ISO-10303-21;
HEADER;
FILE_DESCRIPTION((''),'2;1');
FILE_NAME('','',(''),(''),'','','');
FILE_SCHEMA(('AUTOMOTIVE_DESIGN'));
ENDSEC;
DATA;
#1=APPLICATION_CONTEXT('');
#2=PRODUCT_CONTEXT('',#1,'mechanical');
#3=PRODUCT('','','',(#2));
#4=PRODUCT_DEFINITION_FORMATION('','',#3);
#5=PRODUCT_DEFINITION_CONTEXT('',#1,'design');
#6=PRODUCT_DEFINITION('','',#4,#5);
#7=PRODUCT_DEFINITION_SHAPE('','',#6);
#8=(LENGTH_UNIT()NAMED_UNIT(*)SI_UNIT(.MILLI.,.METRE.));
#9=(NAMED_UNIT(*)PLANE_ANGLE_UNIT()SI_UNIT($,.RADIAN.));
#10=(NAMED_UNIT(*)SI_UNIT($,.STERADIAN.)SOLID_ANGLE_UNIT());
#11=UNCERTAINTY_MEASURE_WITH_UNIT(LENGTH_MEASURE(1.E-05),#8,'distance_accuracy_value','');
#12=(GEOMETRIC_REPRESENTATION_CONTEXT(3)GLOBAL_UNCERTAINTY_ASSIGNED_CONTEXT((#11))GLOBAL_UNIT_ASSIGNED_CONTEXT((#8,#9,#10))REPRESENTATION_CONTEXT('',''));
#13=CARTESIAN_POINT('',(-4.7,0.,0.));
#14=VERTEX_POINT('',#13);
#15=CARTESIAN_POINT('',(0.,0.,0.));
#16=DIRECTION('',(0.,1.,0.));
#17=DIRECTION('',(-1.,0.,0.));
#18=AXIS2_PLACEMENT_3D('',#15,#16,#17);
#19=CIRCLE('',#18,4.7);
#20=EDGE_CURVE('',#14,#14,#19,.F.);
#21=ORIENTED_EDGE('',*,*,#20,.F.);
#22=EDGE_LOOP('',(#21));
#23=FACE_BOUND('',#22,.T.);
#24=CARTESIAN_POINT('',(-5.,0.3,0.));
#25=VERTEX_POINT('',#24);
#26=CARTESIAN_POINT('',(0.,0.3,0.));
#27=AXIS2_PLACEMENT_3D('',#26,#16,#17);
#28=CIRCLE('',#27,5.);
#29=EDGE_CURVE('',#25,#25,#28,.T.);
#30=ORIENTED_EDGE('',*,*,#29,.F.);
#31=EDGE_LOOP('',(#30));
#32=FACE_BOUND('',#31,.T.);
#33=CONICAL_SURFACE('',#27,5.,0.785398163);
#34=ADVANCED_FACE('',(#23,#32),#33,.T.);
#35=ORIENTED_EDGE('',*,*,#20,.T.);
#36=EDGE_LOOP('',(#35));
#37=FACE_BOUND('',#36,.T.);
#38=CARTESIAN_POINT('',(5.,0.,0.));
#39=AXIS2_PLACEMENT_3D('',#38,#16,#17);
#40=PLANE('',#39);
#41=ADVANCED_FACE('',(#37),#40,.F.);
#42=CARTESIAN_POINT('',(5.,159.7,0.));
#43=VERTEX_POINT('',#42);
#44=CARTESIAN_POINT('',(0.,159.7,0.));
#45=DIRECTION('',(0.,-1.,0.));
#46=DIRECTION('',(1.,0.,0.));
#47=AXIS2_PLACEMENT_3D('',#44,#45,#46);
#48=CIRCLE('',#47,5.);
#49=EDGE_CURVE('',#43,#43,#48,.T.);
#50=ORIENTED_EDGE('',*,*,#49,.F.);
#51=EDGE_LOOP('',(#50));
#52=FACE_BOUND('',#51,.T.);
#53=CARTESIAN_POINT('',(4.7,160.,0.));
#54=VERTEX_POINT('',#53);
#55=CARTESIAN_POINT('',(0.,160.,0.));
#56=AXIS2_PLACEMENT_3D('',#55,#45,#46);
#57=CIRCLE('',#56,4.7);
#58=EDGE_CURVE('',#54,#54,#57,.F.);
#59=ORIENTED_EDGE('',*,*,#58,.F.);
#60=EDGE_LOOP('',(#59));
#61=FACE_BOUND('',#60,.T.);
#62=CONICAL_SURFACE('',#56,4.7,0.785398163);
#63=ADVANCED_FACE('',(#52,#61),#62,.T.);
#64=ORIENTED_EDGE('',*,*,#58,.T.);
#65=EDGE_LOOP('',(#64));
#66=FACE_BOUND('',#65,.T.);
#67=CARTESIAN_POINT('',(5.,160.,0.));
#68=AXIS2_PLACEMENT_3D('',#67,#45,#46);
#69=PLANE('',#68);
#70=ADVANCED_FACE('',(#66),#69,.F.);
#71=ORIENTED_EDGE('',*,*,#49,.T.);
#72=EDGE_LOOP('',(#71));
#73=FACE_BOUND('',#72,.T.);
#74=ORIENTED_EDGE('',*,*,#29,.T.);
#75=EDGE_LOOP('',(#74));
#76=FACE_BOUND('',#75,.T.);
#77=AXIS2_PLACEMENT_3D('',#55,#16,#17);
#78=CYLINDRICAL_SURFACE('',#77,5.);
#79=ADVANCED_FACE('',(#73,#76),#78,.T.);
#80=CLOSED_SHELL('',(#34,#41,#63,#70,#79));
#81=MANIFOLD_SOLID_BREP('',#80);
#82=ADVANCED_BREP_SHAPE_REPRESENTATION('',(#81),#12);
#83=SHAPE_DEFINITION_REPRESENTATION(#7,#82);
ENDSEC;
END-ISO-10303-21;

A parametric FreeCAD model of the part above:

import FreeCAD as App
import Part
import Sketcher

V = App.Vector
Q = App.Units.Quantity


def edges_at(feature, points):
    """Names of the edges that pass closest to the given points."""
    edges = feature.Shape.Edges
    near = lambda p: min(range(len(edges)), key=lambda i: edges[i].distToShape(Part.Vertex(*p))[0])
    return sorted({f"Edge{near(p) + 1}" for p in points})


def add_polygon(sketch, points):
    """Adds a closed chain of lines whose ends are joined by coincident constraints."""
    first, n = sketch.GeometryCount, len(points)
    for a, b in zip(points, points[1:] + points[:1]):
        sketch.addGeometry(Part.LineSegment(App.Vector(*a, 0), App.Vector(*b, 0)), False)
    for i in range(n):
        sketch.addConstraint(Sketcher.Constraint("Coincident", first + i, 2, first + (i + 1) % n, 1))

doc = App.newDocument("Part")
body = doc.addObject("PartDesign::Body", "Body")

# Sketch on XY plane
sketch1 = body.newObject("Sketcher::SketchObject", "Sketch")
sketch1.AttachmentSupport = (doc.getObject("XY_Plane"), [""])
sketch1.MapMode = "FlatFace"
add_polygon(sketch1, [(0, 160), (0, 0), (5, 0), (5, 160)])  # lines 0-3
sketch1.addConstraint([
    Sketcher.Constraint("Vertical", 0),
    Sketcher.Constraint("Horizontal", 1),
    Sketcher.Constraint("Vertical", 2),
    Sketcher.Constraint("Horizontal", 3),
    Sketcher.Constraint("Coincident", 0, 2, -1, 1),
    Sketcher.Constraint("DistanceX", 1, 1, 1, 2, Q("5 mm")),
    Sketcher.Constraint("DistanceY", 0, 2, 0, 1, Q("160 mm")),
])
revolution = body.newObject("PartDesign::Revolution", "Revolution")
revolution.Profile = sketch1
revolution.ReferenceAxis = (sketch1, ["V_Axis"])
revolution.Angle = 360
doc.recompute()

chamfer = body.newObject("PartDesign::Chamfer", "Chamfer")
chamfer.Base = (revolution, edges_at(revolution, [(5, 0, 0), (5, 160, 0)]))
chamfer.Size = 0.3

doc.recompute()
